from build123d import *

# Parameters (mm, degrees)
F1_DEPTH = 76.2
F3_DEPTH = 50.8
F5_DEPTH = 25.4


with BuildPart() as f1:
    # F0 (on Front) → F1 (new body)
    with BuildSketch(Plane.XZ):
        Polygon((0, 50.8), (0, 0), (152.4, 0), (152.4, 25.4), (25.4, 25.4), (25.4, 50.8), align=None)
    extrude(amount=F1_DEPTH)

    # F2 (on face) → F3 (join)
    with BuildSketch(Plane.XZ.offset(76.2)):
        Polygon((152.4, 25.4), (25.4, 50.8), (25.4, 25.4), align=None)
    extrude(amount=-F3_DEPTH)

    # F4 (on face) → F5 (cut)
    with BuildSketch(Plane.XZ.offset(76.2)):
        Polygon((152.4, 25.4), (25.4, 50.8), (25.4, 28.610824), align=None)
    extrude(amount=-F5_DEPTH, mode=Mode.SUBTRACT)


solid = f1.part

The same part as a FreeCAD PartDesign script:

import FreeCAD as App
import Part
import Sketcher
Q = App.Units.Quantity

doc = App.newDocument("Part")
body = doc.addObject("PartDesign::Body", "Body")

sketch1 = doc.addObject("Sketcher::SketchObject", "Sketch")
body.addObject(sketch1)
sketch1.AttachmentSupport = (doc.XZ_Plane, [""])
sketch1.MapMode = "FlatFace"
sketch1.addGeometry(Part.LineSegment(App.Vector(0, 51, 0), App.Vector(0, 0, 0)), False)
sketch1.addGeometry(Part.LineSegment(App.Vector(0, 0, 0), App.Vector(152, 0, 0)), False)
sketch1.addGeometry(Part.LineSegment(App.Vector(152, 0, 0), App.Vector(152, 25, 0)), False)
sketch1.addGeometry(Part.LineSegment(App.Vector(152, 25, 0), App.Vector(25, 25, 0)), False)
sketch1.addGeometry(Part.LineSegment(App.Vector(25, 25, 0), App.Vector(25, 51, 0)), False)
sketch1.addGeometry(Part.LineSegment(App.Vector(25, 51, 0), App.Vector(0, 51, 0)), False)
sketch1.addConstraint(Sketcher.Constraint("Coincident", 0, 2, 1, 1))
sketch1.addConstraint(Sketcher.Constraint("Coincident", 1, 2, 2, 1))
sketch1.addConstraint(Sketcher.Constraint("Coincident", 2, 2, 3, 1))
sketch1.addConstraint(Sketcher.Constraint("Coincident", 3, 2, 4, 1))
sketch1.addConstraint(Sketcher.Constraint("Coincident", 4, 2, 5, 1))
sketch1.addConstraint(Sketcher.Constraint("Coincident", 5, 2, 0, 1))
sketch1.addConstraint(Sketcher.Constraint("Vertical", 0))
sketch1.addConstraint(Sketcher.Constraint("Horizontal", 1))
sketch1.addConstraint(Sketcher.Constraint("Vertical", 2))
sketch1.addConstraint(Sketcher.Constraint("Horizontal", 3))
sketch1.addConstraint(Sketcher.Constraint("Vertical", 4))
sketch1.addConstraint(Sketcher.Constraint("Horizontal", 5))
sketch1.addConstraint(Sketcher.Constraint("Coincident", 0, 2, -1, 1))
sketch1.addConstraint(Sketcher.Constraint("Equal", 5, 2))
sketch1.addConstraint(Sketcher.Constraint("Equal", 2, 4))
sketch1.addConstraint(Sketcher.Constraint("DistanceX", 1, 1, 1, 2, Q("6 in")))
sketch1.addConstraint(Sketcher.Constraint("DistanceX", 3, 2, 3, 1, Q("5 in")))
pad1 = doc.addObject("PartDesign::Pad", "Pad")
body.addObject(pad1)
pad1.Profile = sketch1
pad1.Length = Q("3 in")

sketch2 = doc.addObject("Sketcher::SketchObject", "Sketch001")
body.addObject(sketch2)
sketch2.AttachmentSupport = (doc.XZ_Plane, [""])
sketch2.MapMode = "FlatFace"
sketch2.AttachmentOffset = App.Placement(App.Vector(0, 0, 3 * 25.4), App.Rotation())
sketch2.addGeometry(Part.LineSegment(App.Vector(152, 25, 0), App.Vector(25, 51, 0)), False)
sketch2.addGeometry(Part.LineSegment(App.Vector(25, 51, 0), App.Vector(25, 25, 0)), False)
sketch2.addGeometry(Part.LineSegment(App.Vector(25, 25, 0), App.Vector(152, 25, 0)), False)
sketch2.addConstraint(Sketcher.Constraint("Coincident", 0, 2, 1, 1))
sketch2.addConstraint(Sketcher.Constraint("Coincident", 1, 2, 2, 1))
sketch2.addConstraint(Sketcher.Constraint("Coincident", 2, 2, 0, 1))
sketch2.addConstraint(Sketcher.Constraint("Vertical", 1))
sketch2.addConstraint(Sketcher.Constraint("Horizontal", 2))
sketch2.addConstraint(Sketcher.Constraint("DistanceX", 2, 1, 2, 2, Q("5 in")))
sketch2.addConstraint(Sketcher.Constraint("DistanceY", 1, 2, 1, 1, Q("1 in")))
sketch2.addConstraint(Sketcher.Constraint("DistanceX", -1, 1, 0, 2, Q("1 in")))
sketch2.addConstraint(Sketcher.Constraint("DistanceY", -1, 1, 0, 2, Q("2 in")))
pad2 = doc.addObject("PartDesign::Pad", "Pad001")
body.addObject(pad2)
pad2.Profile = sketch2
pad2.Length = Q("2 in")
pad2.Reversed = True

sketch3 = doc.addObject("Sketcher::SketchObject", "Sketch002")
body.addObject(sketch3)
sketch3.AttachmentSupport = (doc.XZ_Plane, [""])
sketch3.MapMode = "FlatFace"
sketch3.AttachmentOffset = App.Placement(App.Vector(0, 0, 3 * 25.4), App.Rotation())
sketch3.addGeometry(Part.LineSegment(App.Vector(152, 25, 0), App.Vector(25, 51, 0)), False)
sketch3.addGeometry(Part.LineSegment(App.Vector(25, 51, 0), App.Vector(25, 29, 0)), False)
sketch3.addGeometry(Part.LineSegment(App.Vector(25, 29, 0), App.Vector(152, 25, 0)), False)
sketch3.addConstraint(Sketcher.Constraint("Coincident", 0, 2, 1, 1))
sketch3.addConstraint(Sketcher.Constraint("Coincident", 1, 2, 2, 1))
sketch3.addConstraint(Sketcher.Constraint("Coincident", 2, 2, 0, 1))
sketch3.addConstraint(Sketcher.Constraint("Vertical", 1))
sketch3.addConstraint(Sketcher.Constraint("DistanceX", -1, 1, 0, 2, Q("1 in")))
sketch3.addConstraint(Sketcher.Constraint("DistanceY", -1, 1, 0, 2, Q("2 in")))
sketch3.addConstraint(Sketcher.Constraint("DistanceX", -1, 1, 2, 2, Q("6 in")))
sketch3.addConstraint(Sketcher.Constraint("DistanceY", -1, 1, 2, 2, Q("1 in")))
sketch3.addConstraint(Sketcher.Constraint("Distance", 2, Q("127.040582 mm")))
pocket1 = doc.addObject("PartDesign::Pocket", "Pocket")
body.addObject(pocket1)
pocket1.Profile = sketch3
pocket1.Length = Q("1 in")

doc.recompute()
